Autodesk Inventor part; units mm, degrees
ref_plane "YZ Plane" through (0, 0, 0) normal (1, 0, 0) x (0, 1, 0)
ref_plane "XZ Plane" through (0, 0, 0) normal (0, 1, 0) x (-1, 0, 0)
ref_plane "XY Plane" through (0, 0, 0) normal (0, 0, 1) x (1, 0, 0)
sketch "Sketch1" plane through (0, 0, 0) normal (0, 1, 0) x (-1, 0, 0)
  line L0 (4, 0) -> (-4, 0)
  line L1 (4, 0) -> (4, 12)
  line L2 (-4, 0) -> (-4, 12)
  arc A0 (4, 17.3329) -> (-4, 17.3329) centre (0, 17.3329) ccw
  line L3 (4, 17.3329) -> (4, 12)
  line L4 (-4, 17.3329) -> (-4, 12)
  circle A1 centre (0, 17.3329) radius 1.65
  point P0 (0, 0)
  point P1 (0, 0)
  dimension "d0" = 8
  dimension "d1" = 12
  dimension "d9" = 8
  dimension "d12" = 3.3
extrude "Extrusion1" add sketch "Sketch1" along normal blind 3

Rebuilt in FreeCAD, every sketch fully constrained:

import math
import FreeCAD as App
import Part
import Sketcher

V = App.Vector

doc = App.newDocument("Part")
body = doc.addObject("PartDesign::Body", "Body")

# Sketch on XZ plane
sketch1 = body.newObject("Sketcher::SketchObject", "Sketch")
sketch1.AttachmentSupport = (doc.getObject("XZ_Plane"), [""])
sketch1.MapMode = "FlatFace"
sketch1.addGeometry(Part.LineSegment(V(4, 0, 0), V(-4, 0, 0)), False)
sketch1.addGeometry(Part.LineSegment(V(-4, 0, 0), V(-4, 17.3, 0)), False)
sketch1.addGeometry(Part.ArcOfCircle(Part.Circle(V(0, 17.3, 0), V(0, 0, 1), 4), math.radians(0), math.radians(180)), False)
sketch1.addGeometry(Part.LineSegment(V(4, 17.3, 0), V(4, 0, 0)), False)
sketch1.addGeometry(Part.Circle(V(0, 17.3, 0), V(0, 0, 1), 1.6), False)
sketch1.addConstraint(Sketcher.Constraint("Coincident", 0, 2, 1, 1))
sketch1.addConstraint(Sketcher.Constraint("Tangent", 1, 2, 2, 2))
sketch1.addConstraint(Sketcher.Constraint("Tangent", 2, 1, 3, 1))
sketch1.addConstraint(Sketcher.Constraint("Coincident", 3, 2, 0, 1))
sketch1.addConstraint(Sketcher.Constraint("Horizontal", 0))
sketch1.addConstraint(Sketcher.Constraint("Vertical", 1))
sketch1.addConstraint(Sketcher.Constraint("Vertical", 3))
sketch1.addConstraint(Sketcher.Constraint("Coincident", 4, 3, 2, 3))
sketch1.addConstraint(Sketcher.Constraint("Symmetric", 0, 2, 3, 2, -1, 1))
sketch1.addConstraint(Sketcher.Constraint("Radius", 2, 4.0))
sketch1.addConstraint(Sketcher.Constraint("Diameter", 4, 3.3))
sketch1.addConstraint(Sketcher.Constraint("DistanceY", 1, 1, 1, 2, 17.333))
pad1 = body.newObject("PartDesign::Pad", "Pad")
pad1.Profile = sketch1
pad1.Length = 3
pad1.Reversed = True

doc.recompute()
